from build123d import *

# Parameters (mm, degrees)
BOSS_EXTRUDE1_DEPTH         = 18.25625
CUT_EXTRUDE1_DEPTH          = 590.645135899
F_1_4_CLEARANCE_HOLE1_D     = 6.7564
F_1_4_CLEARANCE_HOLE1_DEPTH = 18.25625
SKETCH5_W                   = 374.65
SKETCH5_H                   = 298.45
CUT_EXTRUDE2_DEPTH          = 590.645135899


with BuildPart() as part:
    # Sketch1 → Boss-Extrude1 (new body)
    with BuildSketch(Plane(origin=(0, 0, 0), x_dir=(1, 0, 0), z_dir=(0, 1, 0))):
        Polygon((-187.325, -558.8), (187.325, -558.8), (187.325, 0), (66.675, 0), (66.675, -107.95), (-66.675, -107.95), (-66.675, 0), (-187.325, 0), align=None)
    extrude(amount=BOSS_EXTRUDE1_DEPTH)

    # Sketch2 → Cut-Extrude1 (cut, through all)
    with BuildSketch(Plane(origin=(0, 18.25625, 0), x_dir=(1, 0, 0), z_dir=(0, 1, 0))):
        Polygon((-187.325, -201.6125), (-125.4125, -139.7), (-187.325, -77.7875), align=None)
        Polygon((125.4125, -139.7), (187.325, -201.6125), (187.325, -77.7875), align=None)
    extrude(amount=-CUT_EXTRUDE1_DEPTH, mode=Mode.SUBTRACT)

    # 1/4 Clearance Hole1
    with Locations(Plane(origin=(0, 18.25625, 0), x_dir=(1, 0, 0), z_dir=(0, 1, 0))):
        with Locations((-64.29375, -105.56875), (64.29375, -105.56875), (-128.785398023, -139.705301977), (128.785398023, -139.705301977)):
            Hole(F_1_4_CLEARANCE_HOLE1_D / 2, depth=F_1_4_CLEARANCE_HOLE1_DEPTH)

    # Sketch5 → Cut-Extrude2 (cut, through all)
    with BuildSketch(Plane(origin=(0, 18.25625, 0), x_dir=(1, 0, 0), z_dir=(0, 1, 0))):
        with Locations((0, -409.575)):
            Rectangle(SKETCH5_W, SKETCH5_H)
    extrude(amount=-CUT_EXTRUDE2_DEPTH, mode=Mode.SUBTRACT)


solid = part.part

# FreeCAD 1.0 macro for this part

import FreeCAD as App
import Part
import Sketcher

V = App.Vector
Q = App.Units.Quantity

doc = App.newDocument("Part")
body = doc.addObject("PartDesign::Body", "Body")

# Sketch on XZ plane
sketch1 = doc.addObject("Sketcher::SketchObject", "Sketch")
body.addObject(sketch1)
sketch1.AttachmentSupport = (doc.XZ_Plane, [""])
sketch1.MapMode = "FlatFace"
sketch1.addGeometry([
    Part.LineSegment(V(-187, 559, 0), V(187, 559, 0)),  # 0
    Part.LineSegment(V(187, 559, 0), V(187, 0, 0)),  # 1
    Part.LineSegment(V(187, 0, 0), V(67, 0, 0)),  # 2
    Part.LineSegment(V(67, 0, 0), V(67, 108, 0)),  # 3
    Part.LineSegment(V(67, 108, 0), V(-67, 108, 0)),  # 4
    Part.LineSegment(V(-67, 108, 0), V(-67, 0, 0)),  # 5
    Part.LineSegment(V(-67, 0, 0), V(-187, 0, 0)),  # 6
    Part.LineSegment(V(-187, 0, 0), V(-187, 559, 0)),  # 7
], False)
sketch1.addConstraint([
    Sketcher.Constraint("Coincident", 0, 2, 1, 1),
    Sketcher.Constraint("Coincident", 1, 2, 2, 1),
    Sketcher.Constraint("Coincident", 2, 2, 3, 1),
    Sketcher.Constraint("Coincident", 3, 2, 4, 1),
    Sketcher.Constraint("Coincident", 4, 2, 5, 1),
    Sketcher.Constraint("Coincident", 5, 2, 6, 1),
    Sketcher.Constraint("Coincident", 6, 2, 7, 1),
    Sketcher.Constraint("Coincident", 7, 2, 0, 1),
    Sketcher.Constraint("Horizontal", 0),
    Sketcher.Constraint("Vertical", 1),
    Sketcher.Constraint("Horizontal", 2),
    Sketcher.Constraint("Vertical", 3),
    Sketcher.Constraint("Horizontal", 4),
    Sketcher.Constraint("Vertical", 5),
    Sketcher.Constraint("Horizontal", 6),
    Sketcher.Constraint("Vertical", 7),
    Sketcher.Constraint("Symmetric", 2, 2, 5, 2, -1, 1),
    Sketcher.Constraint("Symmetric", 1, 2, 6, 2, -2),
    Sketcher.Constraint("DistanceY", 1, 2, 1, 1, Q("22 in")),
    Sketcher.Constraint("DistanceX", 4, 2, 1, 2, Q("10 in")),
    Sketcher.Constraint("DistanceX", 0, 1, 0, 2, Q("14.75 in")),
    Sketcher.Constraint("DistanceY", 3, 1, 3, 2, Q("4.25 in")),
])
pad1 = doc.addObject("PartDesign::Pad", "Pad")
body.addObject(pad1)
pad1.Profile = sketch1
pad1.Length = Q("0.71875 in")
pad1.Reversed = True

# Sketch on XZ plane
sketch2 = doc.addObject("Sketcher::SketchObject", "Sketch001")
body.addObject(sketch2)
sketch2.AttachmentSupport = (doc.XZ_Plane, [""])
sketch2.MapMode = "FlatFace"
sketch2.AttachmentOffset = App.Placement(V(0, 0, -0.71875 * 25.4), App.Rotation())
sketch2.addGeometry([
    Part.LineSegment(V(-187, 202, 0), V(-125, 140, 0)),  # 0
    Part.LineSegment(V(-125, 140, 0), V(-187, 78, 0)),  # 1
    Part.LineSegment(V(-187, 78, 0), V(-187, 202, 0)),  # 2
    Part.LineSegment(V(125, 140, 0), V(187, 202, 0)),  # 3
    Part.LineSegment(V(187, 202, 0), V(187, 78, 0)),  # 4
    Part.LineSegment(V(187, 78, 0), V(125, 140, 0)),  # 5
], False)
sketch2.addConstraint([
    Sketcher.Constraint("Coincident", 0, 2, 1, 1),
    Sketcher.Constraint("Coincident", 1, 2, 2, 1),
    Sketcher.Constraint("Coincident", 2, 2, 0, 1),
    Sketcher.Constraint("Coincident", 3, 2, 4, 1),
    Sketcher.Constraint("Coincident", 4, 2, 5, 1),
    Sketcher.Constraint("Coincident", 5, 2, 3, 1),
    Sketcher.Constraint("Vertical", 2),
    Sketcher.Constraint("Vertical", 4),
    Sketcher.Constraint("Symmetric", 2, 2, 3, 2, -2),
    Sketcher.Constraint("Symmetric", 0, 2, 5, 2, -2),
    Sketcher.Constraint("Perpendicular", 0, 1),
    Sketcher.Constraint("Parallel", 1, 3),
    Sketcher.Constraint("Perpendicular", 3, 5),
    Sketcher.Constraint("DistanceY", -1, 1, 0, 2, Q("5.5 in")),
    Sketcher.Constraint("DistanceY", 2, 1, 2, 2, Q("4.875 in")),
    Sketcher.Constraint("DistanceX", 2, 2, 3, 2, Q("14.75 in")),
])
pocket1 = doc.addObject("PartDesign::Pocket", "Pocket")
body.addObject(pocket1)
pocket1.Profile = sketch2
pocket1.Type = "ThroughAll"
pocket1.Reversed = True

# Sketch on XZ plane
sketch3 = doc.addObject("Sketcher::SketchObject", "Sketch002")
body.addObject(sketch3)
sketch3.AttachmentSupport = (doc.XZ_Plane, [""])
sketch3.MapMode = "FlatFace"
sketch3.AttachmentOffset = App.Placement(V(0, 0, -0.71875 * 25.4), App.Rotation())
sketch3.addGeometry([
    Part.Circle(V(-64.3, 105.6, 0), V(0, 0, 1), 3.4),
    Part.Circle(V(64.3, 105.6, 0), V(0, 0, 1), 3.4),
    Part.Circle(V(-128.8, 139.7, 0), V(0, 0, 1), 3.4),
    Part.Circle(V(128.8, 139.7, 0), V(0, 0, 1), 3.4),
], False)
sketch3.addConstraint([
    Sketcher.Constraint("Equal", 0, 1),
    Sketcher.Constraint("Equal", 1, 2),
    Sketcher.Constraint("Equal", 2, 3),
    Sketcher.Constraint("Symmetric", 0, 3, 1, 3, -2),
    Sketcher.Constraint("Symmetric", 2, 3, 3, 3, -2),
    Sketcher.Constraint("Diameter", 0, Q("0.266 in")),
    Sketcher.Constraint("DistanceX", 0, 3, -1, 1, Q("2.53125 in")),
    Sketcher.Constraint("DistanceY", -1, 1, 0, 3, Q("4.15625 in")),
    Sketcher.Constraint("DistanceX", 2, 3, -1, 1, 128.785398),
    Sketcher.Constraint("DistanceY", -1, 1, 2, 3, 139.705302),
])
doc.recompute()
hole = doc.addObject("PartDesign::Hole", "Hole")
body.addObject(hole)
hole.Profile = sketch3
hole.ThreadType = "None"
hole.Diameter = Q("0.266 in")
hole.DepthType = "Dimension"
hole.Depth = Q("0.71875 in")
hole.DrillPoint = "Flat"
hole.Reversed = True

# Sketch on XZ plane
sketch4 = doc.addObject("Sketcher::SketchObject", "Sketch003")
body.addObject(sketch4)
sketch4.AttachmentSupport = (doc.XZ_Plane, [""])
sketch4.MapMode = "FlatFace"
sketch4.AttachmentOffset = App.Placement(V(0, 0, -0.71875 * 25.4), App.Rotation())
sketch4.addGeometry([
    Part.LineSegment(V(-187, 260, 0), V(-187, 559, 0)),
    Part.LineSegment(V(-187, 559, 0), V(187, 559, 0)),
    Part.LineSegment(V(187, 559, 0), V(187, 260, 0)),
    Part.LineSegment(V(187, 260, 0), V(-187, 260, 0)),
], False)
sketch4.addConstraint([
    Sketcher.Constraint("Coincident", 0, 2, 1, 1),
    Sketcher.Constraint("Coincident", 1, 2, 2, 1),
    Sketcher.Constraint("Coincident", 2, 2, 3, 1),
    Sketcher.Constraint("Coincident", 3, 2, 0, 1),
    Sketcher.Constraint("Vertical", 0),
    Sketcher.Constraint("Horizontal", 1),
    Sketcher.Constraint("Vertical", 2),
    Sketcher.Constraint("Horizontal", 3),
    Sketcher.Constraint("DistanceY", -1, 1, 0, 2, Q("22 in")),
    Sketcher.Constraint("DistanceX", 1, 1, 1, 2, Q("14.75 in")),
    Sketcher.Constraint("DistanceY", 0, 1, 0, 2, Q("11.75 in")),
    Sketcher.Constraint("DistanceX", 0, 2, -1, 1, Q("7.375 in")),
])
pocket2 = doc.addObject("PartDesign::Pocket", "Pocket001")
body.addObject(pocket2)
pocket2.Profile = sketch4
pocket2.Type = "ThroughAll"
pocket2.Reversed = True

doc.recompute()
